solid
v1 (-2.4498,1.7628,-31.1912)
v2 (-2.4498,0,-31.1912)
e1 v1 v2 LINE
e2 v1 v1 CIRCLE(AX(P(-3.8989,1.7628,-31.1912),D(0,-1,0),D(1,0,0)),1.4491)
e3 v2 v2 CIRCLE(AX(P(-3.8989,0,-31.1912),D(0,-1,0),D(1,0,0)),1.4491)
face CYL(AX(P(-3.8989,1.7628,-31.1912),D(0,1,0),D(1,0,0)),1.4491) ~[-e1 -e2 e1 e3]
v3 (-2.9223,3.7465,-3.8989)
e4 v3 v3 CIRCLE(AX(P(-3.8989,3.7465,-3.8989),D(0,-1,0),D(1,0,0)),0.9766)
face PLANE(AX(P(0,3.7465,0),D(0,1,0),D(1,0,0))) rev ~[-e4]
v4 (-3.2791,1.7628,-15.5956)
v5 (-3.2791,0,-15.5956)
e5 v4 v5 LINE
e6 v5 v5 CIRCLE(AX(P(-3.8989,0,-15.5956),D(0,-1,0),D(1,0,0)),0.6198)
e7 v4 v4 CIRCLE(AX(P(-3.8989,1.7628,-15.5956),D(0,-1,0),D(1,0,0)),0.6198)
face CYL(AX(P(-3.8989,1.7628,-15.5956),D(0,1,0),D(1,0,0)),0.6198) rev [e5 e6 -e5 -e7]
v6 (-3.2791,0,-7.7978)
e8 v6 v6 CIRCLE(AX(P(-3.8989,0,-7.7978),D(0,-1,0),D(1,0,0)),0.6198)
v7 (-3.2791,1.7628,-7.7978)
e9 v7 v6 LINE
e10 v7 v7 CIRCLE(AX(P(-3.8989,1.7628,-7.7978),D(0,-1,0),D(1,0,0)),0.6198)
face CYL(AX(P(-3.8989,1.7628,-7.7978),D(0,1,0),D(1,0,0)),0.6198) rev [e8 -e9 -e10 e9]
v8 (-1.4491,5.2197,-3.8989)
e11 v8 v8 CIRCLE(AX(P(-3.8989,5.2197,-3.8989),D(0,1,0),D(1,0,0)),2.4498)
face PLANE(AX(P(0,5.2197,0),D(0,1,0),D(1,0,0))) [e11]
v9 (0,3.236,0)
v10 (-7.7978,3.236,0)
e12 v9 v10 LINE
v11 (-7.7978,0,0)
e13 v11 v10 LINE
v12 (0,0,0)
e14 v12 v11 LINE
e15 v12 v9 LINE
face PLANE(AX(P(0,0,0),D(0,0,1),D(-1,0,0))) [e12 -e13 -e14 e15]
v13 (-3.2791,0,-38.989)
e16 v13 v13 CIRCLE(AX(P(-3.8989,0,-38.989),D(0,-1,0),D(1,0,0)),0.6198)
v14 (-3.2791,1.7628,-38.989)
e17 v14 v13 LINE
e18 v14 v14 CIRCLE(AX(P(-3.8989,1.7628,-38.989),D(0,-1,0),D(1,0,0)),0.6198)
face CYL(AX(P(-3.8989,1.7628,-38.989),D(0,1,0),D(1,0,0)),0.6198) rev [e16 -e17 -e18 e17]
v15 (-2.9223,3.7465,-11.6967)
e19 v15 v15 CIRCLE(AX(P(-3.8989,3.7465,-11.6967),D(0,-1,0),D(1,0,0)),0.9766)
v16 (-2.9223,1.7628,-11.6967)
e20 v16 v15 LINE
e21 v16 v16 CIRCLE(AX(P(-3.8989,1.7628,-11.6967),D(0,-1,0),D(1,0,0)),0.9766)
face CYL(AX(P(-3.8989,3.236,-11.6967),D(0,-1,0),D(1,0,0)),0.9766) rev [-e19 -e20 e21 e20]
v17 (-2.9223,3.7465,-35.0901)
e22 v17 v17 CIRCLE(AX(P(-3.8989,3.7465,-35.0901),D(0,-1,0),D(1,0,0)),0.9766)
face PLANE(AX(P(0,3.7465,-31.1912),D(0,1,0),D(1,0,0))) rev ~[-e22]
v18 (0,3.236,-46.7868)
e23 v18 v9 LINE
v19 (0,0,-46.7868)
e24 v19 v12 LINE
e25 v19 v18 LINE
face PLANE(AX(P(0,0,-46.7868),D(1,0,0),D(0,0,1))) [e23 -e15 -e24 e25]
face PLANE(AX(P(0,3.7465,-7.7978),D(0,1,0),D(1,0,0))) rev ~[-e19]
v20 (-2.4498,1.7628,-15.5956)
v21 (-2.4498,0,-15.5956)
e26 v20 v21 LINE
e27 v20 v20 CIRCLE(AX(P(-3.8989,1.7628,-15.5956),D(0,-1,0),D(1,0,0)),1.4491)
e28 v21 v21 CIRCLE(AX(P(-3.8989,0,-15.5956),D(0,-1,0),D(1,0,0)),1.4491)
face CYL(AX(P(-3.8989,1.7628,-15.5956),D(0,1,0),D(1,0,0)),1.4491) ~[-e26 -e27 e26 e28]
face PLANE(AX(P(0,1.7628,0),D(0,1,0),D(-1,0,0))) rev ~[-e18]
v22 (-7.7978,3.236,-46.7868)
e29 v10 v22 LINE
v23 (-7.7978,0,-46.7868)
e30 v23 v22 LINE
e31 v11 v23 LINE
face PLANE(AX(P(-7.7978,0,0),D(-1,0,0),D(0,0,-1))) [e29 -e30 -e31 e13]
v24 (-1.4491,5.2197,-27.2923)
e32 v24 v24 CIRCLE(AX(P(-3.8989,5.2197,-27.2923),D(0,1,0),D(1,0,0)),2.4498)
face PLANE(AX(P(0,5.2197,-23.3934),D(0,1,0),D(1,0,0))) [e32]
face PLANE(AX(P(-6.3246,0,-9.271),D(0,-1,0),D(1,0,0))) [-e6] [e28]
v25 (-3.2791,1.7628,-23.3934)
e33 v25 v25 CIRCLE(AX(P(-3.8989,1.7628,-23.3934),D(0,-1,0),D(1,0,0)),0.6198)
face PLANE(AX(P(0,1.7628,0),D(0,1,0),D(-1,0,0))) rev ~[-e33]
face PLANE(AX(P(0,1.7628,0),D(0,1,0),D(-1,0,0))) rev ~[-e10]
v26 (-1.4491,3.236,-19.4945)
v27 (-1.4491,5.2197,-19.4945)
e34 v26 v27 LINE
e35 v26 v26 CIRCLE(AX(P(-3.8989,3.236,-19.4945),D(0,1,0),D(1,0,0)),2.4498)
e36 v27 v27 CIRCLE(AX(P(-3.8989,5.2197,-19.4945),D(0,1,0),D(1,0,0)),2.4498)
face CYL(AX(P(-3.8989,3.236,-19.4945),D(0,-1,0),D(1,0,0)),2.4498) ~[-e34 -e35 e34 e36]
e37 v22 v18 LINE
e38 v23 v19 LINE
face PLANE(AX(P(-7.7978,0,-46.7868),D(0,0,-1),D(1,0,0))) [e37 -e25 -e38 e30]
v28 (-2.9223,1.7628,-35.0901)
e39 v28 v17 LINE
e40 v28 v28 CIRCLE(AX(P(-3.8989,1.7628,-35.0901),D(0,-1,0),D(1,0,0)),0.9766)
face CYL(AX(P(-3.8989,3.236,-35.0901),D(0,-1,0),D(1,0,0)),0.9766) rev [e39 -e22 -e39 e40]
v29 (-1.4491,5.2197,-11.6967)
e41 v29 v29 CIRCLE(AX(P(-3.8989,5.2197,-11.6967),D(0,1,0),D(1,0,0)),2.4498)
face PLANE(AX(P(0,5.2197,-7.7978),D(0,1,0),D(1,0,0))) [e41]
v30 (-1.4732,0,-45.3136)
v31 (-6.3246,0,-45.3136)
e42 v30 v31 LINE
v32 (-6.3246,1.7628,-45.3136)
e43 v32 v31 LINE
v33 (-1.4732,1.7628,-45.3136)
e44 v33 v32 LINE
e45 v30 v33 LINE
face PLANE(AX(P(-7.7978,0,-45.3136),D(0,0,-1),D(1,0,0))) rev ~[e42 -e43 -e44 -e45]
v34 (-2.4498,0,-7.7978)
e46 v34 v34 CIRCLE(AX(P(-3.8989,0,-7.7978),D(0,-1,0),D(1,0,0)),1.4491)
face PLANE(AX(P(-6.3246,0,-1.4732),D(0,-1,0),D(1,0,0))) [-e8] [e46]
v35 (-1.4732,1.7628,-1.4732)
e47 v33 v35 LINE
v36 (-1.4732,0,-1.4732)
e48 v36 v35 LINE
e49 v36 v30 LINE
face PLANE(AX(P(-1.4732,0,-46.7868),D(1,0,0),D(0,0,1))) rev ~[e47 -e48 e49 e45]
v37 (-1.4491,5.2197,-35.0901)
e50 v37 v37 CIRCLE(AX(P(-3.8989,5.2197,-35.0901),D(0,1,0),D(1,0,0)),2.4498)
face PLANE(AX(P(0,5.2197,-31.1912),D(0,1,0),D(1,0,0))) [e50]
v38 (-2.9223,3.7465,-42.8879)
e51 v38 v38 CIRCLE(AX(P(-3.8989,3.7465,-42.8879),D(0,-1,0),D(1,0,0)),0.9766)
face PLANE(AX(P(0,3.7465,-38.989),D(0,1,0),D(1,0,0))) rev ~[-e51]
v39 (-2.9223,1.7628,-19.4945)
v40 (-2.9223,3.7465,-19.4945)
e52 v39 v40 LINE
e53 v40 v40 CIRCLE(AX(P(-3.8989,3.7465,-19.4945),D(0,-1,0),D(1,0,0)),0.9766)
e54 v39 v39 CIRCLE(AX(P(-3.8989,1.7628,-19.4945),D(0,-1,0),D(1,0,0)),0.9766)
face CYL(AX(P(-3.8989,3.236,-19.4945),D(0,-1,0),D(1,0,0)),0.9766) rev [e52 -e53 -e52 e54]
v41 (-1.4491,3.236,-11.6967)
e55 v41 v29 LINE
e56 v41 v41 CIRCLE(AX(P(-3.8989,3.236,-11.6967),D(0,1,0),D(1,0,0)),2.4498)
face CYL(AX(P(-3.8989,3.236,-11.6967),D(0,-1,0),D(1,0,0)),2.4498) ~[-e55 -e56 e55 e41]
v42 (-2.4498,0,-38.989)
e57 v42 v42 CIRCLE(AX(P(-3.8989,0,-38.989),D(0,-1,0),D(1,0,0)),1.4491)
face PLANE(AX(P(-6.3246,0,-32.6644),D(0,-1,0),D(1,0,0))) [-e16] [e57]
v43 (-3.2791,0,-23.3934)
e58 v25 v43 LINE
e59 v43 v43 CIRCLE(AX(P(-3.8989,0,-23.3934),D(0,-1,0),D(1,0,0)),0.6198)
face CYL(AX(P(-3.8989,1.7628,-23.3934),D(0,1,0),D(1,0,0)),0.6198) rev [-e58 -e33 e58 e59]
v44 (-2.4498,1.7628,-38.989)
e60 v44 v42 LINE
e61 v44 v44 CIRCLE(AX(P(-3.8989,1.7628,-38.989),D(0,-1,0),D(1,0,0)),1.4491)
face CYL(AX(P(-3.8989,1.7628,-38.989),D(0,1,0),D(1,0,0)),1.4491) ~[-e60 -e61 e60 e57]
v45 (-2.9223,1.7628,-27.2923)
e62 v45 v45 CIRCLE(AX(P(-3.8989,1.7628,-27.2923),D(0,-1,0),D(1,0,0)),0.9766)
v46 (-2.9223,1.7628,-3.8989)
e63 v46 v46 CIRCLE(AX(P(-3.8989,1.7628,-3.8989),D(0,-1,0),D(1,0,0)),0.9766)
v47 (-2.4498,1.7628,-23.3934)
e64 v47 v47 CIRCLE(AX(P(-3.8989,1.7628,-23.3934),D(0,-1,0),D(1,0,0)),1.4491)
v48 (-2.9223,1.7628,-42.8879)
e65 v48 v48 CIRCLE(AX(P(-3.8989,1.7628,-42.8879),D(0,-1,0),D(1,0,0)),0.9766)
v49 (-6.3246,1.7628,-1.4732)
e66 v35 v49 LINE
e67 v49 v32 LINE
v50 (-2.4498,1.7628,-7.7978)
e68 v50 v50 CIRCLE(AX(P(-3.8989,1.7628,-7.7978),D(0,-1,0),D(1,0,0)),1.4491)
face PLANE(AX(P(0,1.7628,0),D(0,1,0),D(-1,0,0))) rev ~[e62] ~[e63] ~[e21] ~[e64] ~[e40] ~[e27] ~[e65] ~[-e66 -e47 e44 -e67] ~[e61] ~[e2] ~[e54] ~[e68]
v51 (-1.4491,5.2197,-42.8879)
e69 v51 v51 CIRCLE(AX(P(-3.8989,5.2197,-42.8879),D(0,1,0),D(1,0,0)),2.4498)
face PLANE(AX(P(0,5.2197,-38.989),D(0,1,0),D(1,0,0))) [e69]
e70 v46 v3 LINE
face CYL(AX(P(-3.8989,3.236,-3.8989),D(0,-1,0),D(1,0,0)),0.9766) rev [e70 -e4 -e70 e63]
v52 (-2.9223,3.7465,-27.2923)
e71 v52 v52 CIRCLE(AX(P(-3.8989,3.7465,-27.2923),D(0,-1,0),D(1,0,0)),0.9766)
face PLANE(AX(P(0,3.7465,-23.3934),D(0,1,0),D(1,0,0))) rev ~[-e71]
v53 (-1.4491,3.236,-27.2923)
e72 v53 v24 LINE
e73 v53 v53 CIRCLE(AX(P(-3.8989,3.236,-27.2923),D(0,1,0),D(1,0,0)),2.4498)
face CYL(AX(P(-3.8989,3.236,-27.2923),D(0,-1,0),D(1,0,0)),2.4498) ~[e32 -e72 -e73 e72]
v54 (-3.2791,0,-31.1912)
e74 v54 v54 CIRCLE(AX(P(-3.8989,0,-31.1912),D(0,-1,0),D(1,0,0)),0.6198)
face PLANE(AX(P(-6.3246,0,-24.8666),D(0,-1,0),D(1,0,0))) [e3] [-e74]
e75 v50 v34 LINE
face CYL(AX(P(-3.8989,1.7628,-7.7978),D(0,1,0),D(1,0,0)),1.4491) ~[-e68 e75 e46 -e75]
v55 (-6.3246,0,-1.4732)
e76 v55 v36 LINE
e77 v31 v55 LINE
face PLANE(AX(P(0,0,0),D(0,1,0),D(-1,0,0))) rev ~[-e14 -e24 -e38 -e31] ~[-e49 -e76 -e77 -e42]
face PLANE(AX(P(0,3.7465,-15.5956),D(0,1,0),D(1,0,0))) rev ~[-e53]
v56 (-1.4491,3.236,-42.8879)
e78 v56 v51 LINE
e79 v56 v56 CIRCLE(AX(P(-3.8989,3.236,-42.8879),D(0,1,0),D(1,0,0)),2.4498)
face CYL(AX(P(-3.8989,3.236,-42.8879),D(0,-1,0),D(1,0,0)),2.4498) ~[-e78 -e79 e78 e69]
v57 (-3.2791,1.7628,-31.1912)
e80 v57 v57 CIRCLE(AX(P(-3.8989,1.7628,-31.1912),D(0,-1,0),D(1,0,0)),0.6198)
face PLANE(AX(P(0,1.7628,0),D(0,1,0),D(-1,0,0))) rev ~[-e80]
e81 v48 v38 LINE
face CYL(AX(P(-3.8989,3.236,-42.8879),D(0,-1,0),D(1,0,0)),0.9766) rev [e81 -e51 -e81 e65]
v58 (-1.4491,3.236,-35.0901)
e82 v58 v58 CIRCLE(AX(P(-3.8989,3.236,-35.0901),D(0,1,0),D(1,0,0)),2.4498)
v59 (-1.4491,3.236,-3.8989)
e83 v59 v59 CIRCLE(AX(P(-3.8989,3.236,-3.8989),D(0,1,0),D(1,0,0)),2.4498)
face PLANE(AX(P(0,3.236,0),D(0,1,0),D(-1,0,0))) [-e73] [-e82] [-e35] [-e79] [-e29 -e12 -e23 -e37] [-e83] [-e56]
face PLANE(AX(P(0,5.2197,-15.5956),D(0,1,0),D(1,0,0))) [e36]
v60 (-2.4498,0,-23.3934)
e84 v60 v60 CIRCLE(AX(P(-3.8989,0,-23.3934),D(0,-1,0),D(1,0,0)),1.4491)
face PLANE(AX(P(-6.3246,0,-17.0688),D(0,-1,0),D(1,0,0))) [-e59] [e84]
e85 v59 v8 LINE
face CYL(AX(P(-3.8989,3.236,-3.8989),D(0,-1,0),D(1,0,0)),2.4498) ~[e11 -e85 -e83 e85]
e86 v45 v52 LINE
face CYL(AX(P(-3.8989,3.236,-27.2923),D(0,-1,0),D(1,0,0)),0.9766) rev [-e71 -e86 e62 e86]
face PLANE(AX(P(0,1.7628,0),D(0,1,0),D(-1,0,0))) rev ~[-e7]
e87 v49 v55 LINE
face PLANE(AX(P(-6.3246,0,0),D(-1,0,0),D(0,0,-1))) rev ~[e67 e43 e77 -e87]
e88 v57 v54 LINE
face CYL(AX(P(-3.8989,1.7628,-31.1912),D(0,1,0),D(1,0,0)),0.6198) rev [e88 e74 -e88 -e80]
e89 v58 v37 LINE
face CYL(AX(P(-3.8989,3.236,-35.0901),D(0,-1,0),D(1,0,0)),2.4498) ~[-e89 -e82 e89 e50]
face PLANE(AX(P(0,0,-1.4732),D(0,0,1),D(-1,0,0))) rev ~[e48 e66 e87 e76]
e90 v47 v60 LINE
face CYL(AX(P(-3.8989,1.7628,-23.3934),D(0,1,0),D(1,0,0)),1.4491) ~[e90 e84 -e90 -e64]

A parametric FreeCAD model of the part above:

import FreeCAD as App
import Part
import Sketcher
from FreeCAD import Vector
Q = App.Units.Quantity


def faces_at(feature, points):
    """Names of the faces that lie closest to the given points."""
    faces = feature.Shape.Faces
    near = lambda p: min(range(len(faces)), key=lambda i: faces[i].distToShape(Part.Vertex(*p))[0])
    return sorted({f"Face{near(p) + 1}" for p in points})


def add_polygon(sketch, points):
    """Adds a closed chain of lines whose ends are joined by coincident constraints."""
    first, n = sketch.GeometryCount, len(points)
    for a, b in zip(points, points[1:] + points[:1]):
        sketch.addGeometry(Part.LineSegment(App.Vector(*a, 0), App.Vector(*b, 0)), False)
    for i in range(n):
        sketch.addConstraint(Sketcher.Constraint("Coincident", first + i, 2, first + (i + 1) % n, 1))

doc = App.newDocument("Part")
params = doc.addObject("Spreadsheet::Sheet", "Params")
for row, (alias, value) in enumerate([
    ("sketch1_width", "0.307 in"),
    ("sketch1_height", "1.842 in"),
    ("pad1_length", "0.1274016 in"),
    ("pad2_length", "0.0780984 in"),
    ("linearpattern_pitch", "0.307 in"),
    ("thickness_wall", "0.058 in"),
    ("pad3_length", "0.0694016 in"),
    ("linearpattern2_pitch", "0.307 in"),
], start=1):
    params.set(f"A{row}", alias)
    params.set(f"B{row}", "=" + value)
    params.setAlias(f"B{row}", alias)

body = doc.addObject("PartDesign::Body", "Body")

sketch1 = body.newObject("Sketcher::SketchObject", "Sketch")
sketch1.AttachmentSupport = (doc.getObject("XZ_Plane"), [""])
sketch1.MapMode = "FlatFace"
add_polygon(sketch1, [(-8, 0), (0, 0), (0, -47), (-8, -47)])
sketch1.addConstraint(Sketcher.Constraint("Horizontal", 0))
sketch1.addConstraint(Sketcher.Constraint("Vertical", 1))
sketch1.addConstraint(Sketcher.Constraint("Horizontal", 2))
sketch1.addConstraint(Sketcher.Constraint("Vertical", 3))
sketch1.addConstraint(Sketcher.Constraint("Coincident", 0, 2, -1, 1))
sketch1.addConstraint(Sketcher.Constraint("DistanceX", 0, 1, 0, 2, Q("0.307 in")))
sketch1.addConstraint(Sketcher.Constraint("DistanceY", 1, 2, 1, 1, Q("1.842 in")))
sketch1.setExpression("Constraints[9]", "Params.sketch1_width")
sketch1.setExpression("Constraints[10]", "Params.sketch1_height")
pad1 = body.newObject("PartDesign::Pad", "Pad")
pad1.Profile = sketch1
pad1.setExpression("Length", "Params.pad1_length")
pad1.Reversed = True

sketch2 = body.newObject("Sketcher::SketchObject", "Sketch001")
sketch2.AttachmentSupport = (doc.getObject("XZ_Plane"), [""])
sketch2.MapMode = "FlatFace"
sketch2.AttachmentOffset = App.Placement(Vector(0, 0, -0.1274016 * 25.4), App.Rotation())
sketch2.addGeometry(Part.Circle(Vector(-3.9, -3.9, 0), Vector(0, 0, 1), 2.4), False)
sketch2.addConstraint(Sketcher.Constraint("Diameter", 0, Q("0.1929 in")))
sketch2.addConstraint(Sketcher.Constraint("DistanceX", 0, 3, -1, 1, Q("0.1535 in")))
sketch2.addConstraint(Sketcher.Constraint("DistanceY", 0, 3, -1, 1, Q("0.1535 in")))
pad2 = body.newObject("PartDesign::Pad", "Pad001")
pad2.Profile = sketch2
pad2.setExpression("Length", "Params.pad2_length")
pad2.Reversed = True
doc.recompute()

linearpattern = body.newObject("PartDesign::LinearPattern", "LinearPattern")
linearpattern.Originals = [pad2]
linearpattern.Direction = (doc.getObject("Z_Axis"), [""])
linearpattern.Mode = "offset"
linearpattern.setExpression("Offset", "Params.linearpattern_pitch")
linearpattern.Occurrences = 6
linearpattern.Reversed = True
body.Tip = linearpattern
doc.recompute()

thickness = body.newObject("PartDesign::Thickness", "Thickness")
thickness.Base = (linearpattern, faces_at(linearpattern, [(-2.599, 0, -15.596)]))
thickness.setExpression("Value", "Params.thickness_wall")
thickness.Reversed = True
thickness.Join = "Intersection"

sketch3 = body.newObject("Sketcher::SketchObject", "Sketch002")
sketch3.AttachmentSupport = (doc.getObject("XZ_Plane"), [""])
sketch3.MapMode = "FlatFace"
sketch3.AttachmentOffset = App.Placement(Vector(0, 0, -0.0694016 * 25.4), App.Rotation())
sketch3.addGeometry(Part.Circle(Vector(-3.9, -7.8, 0), Vector(0, 0, 1), 1.4), False)
sketch3.addGeometry(Part.Circle(Vector(-3.9, -7.8, 0), Vector(0, 0, 1), 0.6), False)
sketch3.addConstraint(Sketcher.Constraint("Coincident", 1, 3, 0, 3))
sketch3.addConstraint(Sketcher.Constraint("Diameter", 1, Q("0.0488 in")))
sketch3.addConstraint(Sketcher.Constraint("Diameter", 0, Q("0.1141 in")))
sketch3.addConstraint(Sketcher.Constraint("DistanceY", 0, 3, -1, 1, Q("0.307 in")))
sketch3.addConstraint(Sketcher.Constraint("DistanceX", 0, 3, -1, 1, Q("0.1535 in")))
pad3 = body.newObject("PartDesign::Pad", "Pad002")
pad3.Profile = sketch3
pad3.setExpression("Length", "Params.pad3_length")
doc.recompute()

linearpattern2 = body.newObject("PartDesign::LinearPattern", "LinearPattern001")
linearpattern2.Originals = [pad3]
linearpattern2.Direction = (doc.getObject("Z_Axis"), [""])
linearpattern2.Mode = "offset"
linearpattern2.setExpression("Offset", "Params.linearpattern2_pitch")
linearpattern2.Occurrences = 5
linearpattern2.Reversed = True
body.Tip = linearpattern2

doc.recompute()
